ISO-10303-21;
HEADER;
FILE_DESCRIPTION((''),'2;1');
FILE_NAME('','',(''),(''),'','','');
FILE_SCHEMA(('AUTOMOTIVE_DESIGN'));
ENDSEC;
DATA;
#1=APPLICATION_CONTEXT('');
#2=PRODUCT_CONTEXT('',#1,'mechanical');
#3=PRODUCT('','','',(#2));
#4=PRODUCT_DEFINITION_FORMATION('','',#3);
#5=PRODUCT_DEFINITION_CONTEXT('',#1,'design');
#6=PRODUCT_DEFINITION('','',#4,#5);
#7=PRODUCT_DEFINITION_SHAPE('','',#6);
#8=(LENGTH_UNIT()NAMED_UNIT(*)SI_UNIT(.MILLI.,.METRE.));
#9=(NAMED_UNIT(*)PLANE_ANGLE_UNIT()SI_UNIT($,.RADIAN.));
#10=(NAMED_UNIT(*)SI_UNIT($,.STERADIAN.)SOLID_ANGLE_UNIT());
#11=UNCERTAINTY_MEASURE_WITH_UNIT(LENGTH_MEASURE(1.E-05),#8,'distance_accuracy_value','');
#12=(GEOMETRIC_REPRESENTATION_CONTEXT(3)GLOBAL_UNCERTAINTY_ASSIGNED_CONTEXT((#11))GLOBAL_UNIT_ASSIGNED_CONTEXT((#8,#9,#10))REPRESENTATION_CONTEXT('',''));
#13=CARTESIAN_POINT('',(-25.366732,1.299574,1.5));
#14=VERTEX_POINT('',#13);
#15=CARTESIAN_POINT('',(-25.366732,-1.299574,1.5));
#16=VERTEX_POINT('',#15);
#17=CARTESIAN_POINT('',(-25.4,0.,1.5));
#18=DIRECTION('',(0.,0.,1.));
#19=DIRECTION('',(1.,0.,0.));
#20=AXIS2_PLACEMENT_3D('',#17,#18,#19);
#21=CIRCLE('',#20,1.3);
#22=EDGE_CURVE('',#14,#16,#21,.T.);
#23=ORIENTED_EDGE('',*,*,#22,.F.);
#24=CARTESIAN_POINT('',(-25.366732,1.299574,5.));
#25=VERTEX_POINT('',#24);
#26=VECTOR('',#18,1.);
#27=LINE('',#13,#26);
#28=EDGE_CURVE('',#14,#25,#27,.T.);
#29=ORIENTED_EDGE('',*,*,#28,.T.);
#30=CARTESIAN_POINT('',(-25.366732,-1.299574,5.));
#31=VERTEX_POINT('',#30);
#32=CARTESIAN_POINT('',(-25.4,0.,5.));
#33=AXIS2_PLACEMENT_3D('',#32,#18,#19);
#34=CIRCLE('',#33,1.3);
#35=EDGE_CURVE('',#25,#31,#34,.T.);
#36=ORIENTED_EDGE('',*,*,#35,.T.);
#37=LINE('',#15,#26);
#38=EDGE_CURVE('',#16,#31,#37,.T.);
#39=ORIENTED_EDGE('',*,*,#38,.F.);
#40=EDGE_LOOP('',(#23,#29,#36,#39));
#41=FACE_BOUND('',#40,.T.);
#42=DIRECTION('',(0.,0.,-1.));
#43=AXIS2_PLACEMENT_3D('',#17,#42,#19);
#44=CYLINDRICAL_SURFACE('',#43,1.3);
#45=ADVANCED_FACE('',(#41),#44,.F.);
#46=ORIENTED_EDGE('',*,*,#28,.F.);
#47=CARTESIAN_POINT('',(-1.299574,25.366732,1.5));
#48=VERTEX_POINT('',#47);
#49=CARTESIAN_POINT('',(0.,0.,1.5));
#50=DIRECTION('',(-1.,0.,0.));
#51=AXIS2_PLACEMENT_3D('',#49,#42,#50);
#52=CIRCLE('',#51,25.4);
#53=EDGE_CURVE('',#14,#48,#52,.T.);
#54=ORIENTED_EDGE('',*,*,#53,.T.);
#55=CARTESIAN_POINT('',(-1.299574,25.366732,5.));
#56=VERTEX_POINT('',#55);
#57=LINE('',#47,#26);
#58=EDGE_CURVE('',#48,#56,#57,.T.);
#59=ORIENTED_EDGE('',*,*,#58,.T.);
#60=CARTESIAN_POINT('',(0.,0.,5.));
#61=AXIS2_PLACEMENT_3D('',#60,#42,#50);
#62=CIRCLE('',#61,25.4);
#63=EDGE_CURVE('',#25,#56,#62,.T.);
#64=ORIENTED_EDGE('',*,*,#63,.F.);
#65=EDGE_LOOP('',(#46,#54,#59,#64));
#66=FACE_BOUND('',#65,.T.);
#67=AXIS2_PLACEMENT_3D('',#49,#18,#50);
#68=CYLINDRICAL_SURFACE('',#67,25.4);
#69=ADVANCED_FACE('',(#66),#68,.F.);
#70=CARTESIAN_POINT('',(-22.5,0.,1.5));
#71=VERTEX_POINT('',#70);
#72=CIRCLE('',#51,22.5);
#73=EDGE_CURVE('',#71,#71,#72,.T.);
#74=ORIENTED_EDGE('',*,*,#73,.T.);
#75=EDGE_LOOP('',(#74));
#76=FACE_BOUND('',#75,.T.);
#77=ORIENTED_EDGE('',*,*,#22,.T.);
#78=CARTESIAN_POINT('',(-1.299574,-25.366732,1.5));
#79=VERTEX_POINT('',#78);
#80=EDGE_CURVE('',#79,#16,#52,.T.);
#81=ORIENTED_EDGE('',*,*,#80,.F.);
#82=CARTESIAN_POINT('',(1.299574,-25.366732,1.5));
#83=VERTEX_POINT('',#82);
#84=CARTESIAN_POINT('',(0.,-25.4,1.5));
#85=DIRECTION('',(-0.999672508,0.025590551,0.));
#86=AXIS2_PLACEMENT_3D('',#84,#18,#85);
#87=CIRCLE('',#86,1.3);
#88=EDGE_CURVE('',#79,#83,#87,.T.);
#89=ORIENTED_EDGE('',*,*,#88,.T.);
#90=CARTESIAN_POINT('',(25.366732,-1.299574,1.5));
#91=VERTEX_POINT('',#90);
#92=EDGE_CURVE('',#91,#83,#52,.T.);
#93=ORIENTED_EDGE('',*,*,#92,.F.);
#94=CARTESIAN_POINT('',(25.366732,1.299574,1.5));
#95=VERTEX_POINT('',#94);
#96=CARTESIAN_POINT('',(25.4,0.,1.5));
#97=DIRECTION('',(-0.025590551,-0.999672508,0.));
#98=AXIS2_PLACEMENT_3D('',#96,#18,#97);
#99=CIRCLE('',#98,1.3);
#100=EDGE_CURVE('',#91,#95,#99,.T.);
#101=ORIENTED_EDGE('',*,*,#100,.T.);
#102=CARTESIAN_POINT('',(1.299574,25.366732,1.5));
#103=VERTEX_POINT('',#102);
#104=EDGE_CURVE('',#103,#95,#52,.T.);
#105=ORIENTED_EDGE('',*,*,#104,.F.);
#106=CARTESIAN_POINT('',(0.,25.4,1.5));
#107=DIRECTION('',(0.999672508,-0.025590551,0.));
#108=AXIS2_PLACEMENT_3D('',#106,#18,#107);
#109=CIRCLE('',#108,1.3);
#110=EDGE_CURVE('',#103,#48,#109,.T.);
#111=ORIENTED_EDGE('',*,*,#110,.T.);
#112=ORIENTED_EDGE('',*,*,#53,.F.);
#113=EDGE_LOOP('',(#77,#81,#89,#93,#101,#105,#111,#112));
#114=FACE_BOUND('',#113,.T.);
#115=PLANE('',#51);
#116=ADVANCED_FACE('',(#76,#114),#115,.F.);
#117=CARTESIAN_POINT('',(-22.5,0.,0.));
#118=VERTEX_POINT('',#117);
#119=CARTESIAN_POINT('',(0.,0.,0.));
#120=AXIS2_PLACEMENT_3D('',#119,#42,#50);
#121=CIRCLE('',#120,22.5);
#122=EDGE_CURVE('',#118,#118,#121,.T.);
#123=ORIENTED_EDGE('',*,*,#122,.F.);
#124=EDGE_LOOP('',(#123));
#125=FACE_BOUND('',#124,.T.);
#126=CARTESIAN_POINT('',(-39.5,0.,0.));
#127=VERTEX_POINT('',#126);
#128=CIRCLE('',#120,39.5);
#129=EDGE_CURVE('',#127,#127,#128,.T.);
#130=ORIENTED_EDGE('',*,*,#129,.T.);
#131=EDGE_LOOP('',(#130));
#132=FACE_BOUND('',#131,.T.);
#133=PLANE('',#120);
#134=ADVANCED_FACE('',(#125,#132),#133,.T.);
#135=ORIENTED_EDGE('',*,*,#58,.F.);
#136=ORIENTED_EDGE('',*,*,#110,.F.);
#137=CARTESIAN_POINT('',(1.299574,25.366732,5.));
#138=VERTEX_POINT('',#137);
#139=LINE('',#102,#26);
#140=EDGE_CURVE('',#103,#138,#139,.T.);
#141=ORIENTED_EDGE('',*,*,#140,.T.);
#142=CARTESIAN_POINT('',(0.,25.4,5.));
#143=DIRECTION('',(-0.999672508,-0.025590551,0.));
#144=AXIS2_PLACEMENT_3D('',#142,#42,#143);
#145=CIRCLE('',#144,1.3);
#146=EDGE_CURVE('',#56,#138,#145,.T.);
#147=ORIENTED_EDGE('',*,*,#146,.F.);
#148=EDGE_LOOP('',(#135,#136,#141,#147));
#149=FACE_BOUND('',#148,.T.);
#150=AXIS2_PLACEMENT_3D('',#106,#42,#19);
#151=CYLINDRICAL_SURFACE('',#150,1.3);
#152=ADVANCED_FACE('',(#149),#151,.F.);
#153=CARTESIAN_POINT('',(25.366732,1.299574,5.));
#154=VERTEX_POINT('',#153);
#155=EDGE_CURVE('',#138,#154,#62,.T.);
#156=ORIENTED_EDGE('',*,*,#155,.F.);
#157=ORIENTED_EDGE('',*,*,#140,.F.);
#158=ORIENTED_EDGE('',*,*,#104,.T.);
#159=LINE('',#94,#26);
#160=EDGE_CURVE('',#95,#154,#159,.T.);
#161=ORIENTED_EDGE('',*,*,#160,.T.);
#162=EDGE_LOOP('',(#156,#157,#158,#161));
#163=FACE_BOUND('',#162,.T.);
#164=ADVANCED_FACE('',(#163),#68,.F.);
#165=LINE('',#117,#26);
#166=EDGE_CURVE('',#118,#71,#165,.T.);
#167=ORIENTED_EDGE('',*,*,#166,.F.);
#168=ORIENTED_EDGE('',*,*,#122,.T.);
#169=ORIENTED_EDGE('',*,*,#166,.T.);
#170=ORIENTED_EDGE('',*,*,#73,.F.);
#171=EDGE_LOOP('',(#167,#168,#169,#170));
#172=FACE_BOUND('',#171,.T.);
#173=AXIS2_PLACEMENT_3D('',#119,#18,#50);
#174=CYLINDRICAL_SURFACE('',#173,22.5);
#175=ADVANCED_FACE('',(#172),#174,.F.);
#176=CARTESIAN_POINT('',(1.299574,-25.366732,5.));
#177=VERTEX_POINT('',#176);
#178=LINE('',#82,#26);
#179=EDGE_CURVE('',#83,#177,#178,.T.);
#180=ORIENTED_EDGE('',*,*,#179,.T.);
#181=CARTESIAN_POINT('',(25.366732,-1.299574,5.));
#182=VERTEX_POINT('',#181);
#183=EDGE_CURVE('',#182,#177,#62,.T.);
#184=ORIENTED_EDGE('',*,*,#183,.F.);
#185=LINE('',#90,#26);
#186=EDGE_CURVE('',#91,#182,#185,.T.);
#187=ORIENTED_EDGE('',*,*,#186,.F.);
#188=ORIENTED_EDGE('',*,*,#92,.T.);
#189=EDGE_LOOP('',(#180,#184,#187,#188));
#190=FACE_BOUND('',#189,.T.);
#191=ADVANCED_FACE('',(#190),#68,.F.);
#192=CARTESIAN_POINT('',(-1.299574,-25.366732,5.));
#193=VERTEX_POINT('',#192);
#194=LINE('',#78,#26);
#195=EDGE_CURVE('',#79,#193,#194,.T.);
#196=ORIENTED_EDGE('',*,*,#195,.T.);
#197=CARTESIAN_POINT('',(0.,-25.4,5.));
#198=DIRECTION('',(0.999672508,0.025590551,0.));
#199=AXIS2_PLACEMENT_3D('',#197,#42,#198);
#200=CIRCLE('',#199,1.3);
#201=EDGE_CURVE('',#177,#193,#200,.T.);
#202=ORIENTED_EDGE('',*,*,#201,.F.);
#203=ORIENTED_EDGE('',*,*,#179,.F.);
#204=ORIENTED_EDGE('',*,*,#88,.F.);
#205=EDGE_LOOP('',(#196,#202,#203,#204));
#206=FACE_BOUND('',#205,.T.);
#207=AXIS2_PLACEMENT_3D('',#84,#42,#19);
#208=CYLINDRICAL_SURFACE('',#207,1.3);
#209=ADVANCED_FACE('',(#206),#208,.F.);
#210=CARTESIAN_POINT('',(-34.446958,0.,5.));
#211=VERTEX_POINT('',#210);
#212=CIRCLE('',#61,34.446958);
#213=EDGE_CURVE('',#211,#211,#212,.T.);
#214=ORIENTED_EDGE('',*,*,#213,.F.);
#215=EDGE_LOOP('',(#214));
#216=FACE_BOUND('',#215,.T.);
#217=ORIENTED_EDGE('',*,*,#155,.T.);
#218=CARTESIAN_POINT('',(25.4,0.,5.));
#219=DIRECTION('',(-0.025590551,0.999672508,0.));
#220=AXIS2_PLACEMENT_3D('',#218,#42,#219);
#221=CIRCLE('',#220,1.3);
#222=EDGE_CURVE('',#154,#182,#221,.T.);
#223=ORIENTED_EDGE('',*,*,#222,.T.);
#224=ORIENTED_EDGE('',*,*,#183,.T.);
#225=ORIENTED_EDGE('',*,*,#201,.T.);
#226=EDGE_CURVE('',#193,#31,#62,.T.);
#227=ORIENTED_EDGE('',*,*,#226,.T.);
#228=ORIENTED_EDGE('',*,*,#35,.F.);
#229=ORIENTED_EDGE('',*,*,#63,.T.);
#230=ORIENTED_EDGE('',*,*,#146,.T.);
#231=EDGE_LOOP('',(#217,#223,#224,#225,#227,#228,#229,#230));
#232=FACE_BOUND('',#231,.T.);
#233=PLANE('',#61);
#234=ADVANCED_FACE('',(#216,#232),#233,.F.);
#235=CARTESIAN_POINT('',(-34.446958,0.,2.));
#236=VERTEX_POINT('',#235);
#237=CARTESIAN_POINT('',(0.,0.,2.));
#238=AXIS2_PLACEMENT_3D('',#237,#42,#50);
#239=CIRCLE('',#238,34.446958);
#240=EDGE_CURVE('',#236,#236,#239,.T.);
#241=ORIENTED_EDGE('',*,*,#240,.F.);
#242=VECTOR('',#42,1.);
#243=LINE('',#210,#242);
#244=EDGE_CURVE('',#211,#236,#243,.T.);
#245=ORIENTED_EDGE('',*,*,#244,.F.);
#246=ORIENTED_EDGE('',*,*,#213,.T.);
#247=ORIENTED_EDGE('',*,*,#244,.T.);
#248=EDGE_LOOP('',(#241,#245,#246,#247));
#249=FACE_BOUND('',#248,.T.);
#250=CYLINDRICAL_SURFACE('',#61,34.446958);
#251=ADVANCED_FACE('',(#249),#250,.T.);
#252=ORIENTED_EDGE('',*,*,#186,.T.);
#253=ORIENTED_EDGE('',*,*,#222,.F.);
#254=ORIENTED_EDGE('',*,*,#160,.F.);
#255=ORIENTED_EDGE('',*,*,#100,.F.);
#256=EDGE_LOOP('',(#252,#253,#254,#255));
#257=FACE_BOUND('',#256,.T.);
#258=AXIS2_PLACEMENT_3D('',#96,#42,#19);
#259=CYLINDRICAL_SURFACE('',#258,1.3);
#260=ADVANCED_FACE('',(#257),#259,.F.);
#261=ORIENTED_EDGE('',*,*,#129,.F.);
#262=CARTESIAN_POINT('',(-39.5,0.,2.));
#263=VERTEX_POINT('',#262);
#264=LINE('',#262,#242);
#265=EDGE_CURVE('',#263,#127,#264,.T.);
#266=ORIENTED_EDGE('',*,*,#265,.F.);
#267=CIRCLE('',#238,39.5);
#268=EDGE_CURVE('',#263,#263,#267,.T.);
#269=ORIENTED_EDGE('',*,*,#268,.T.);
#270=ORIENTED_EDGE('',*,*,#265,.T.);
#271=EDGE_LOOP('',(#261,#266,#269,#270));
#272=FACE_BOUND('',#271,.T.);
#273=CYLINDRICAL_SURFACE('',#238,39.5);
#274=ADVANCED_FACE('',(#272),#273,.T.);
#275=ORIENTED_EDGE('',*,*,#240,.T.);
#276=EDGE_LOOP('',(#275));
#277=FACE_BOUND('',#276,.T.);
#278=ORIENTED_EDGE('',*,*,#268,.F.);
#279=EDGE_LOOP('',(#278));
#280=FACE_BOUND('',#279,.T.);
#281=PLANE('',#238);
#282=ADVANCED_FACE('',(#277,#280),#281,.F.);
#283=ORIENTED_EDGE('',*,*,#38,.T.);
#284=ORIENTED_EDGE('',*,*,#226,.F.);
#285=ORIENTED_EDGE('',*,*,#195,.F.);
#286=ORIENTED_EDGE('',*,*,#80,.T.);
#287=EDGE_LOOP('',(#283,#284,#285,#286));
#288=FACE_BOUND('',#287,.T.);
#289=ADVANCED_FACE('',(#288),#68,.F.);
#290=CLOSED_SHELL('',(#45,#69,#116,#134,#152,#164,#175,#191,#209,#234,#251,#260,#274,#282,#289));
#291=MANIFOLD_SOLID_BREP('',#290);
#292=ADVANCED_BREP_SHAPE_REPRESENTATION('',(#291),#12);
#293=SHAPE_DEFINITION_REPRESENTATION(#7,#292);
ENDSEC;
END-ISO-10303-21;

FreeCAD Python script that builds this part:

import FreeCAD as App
import Part
import Sketcher
Q = App.Units.Quantity


def add_polygon(sketch, points):
    """Adds a closed chain of lines whose ends are joined by coincident constraints."""
    first, n = sketch.GeometryCount, len(points)
    for a, b in zip(points, points[1:] + points[:1]):
        sketch.addGeometry(Part.LineSegment(App.Vector(*a, 0), App.Vector(*b, 0)), False)
    for i in range(n):
        sketch.addConstraint(Sketcher.Constraint("Coincident", first + i, 2, first + (i + 1) % n, 1))

doc = App.newDocument("Part")
body = doc.addObject("PartDesign::Body", "Body")

# Sketch on XZ plane
sketch1 = body.newObject("Sketcher::SketchObject", "Sketch")
sketch1.AttachmentSupport = (doc.getObject("XZ_Plane"), [""])
sketch1.MapMode = "FlatFace"
add_polygon(sketch1, [(-39.5, 2), (-39.5, 0), (-22.5, 0), (-22.5, 1.5), (-25.4, 1.5), (-25.4, 5), (-34.446958, 5), (-34.446958, 2)])  # lines 0-7
sketch1.addConstraint([
    Sketcher.Constraint("Vertical", 0),
    Sketcher.Constraint("Horizontal", 1),
    Sketcher.Constraint("Vertical", 2),
    Sketcher.Constraint("Horizontal", 3),
    Sketcher.Constraint("Vertical", 4),
    Sketcher.Constraint("Horizontal", 5),
    Sketcher.Constraint("Vertical", 6),
    Sketcher.Constraint("Horizontal", 7),
    Sketcher.Constraint("PointOnObject", 0, 2, -1),
    Sketcher.Constraint("DistanceX", 1, 1, 1, 2, Q("17 mm")),
    Sketcher.Constraint("DistanceY", 0, 2, 0, 1, Q("2 mm")),
    Sketcher.Constraint("DistanceY", 6, 2, 6, 1, Q("3 mm")),
    Sketcher.Constraint("DistanceX", 3, 2, 3, 1, Q("2.9 mm")),
    Sketcher.Constraint("DistanceY", 2, 1, 2, 2, Q("1.5 mm")),
    Sketcher.Constraint("DistanceX", 0, 2, -1, 1, Q("39.5 mm")),
    Sketcher.Constraint("DistanceX", 5, 2, 5, 1, Q("9.046958 mm")),
])
revolution = body.newObject("PartDesign::Revolution", "Revolution")
revolution.Profile = sketch1
revolution.ReferenceAxis = (sketch1, ["V_Axis"])
revolution.Angle = 360

# Sketch on XY plane
sketch2 = body.newObject("Sketcher::SketchObject", "Sketch001")
sketch2.AttachmentSupport = (doc.getObject("XY_Plane"), [""])
sketch2.MapMode = "FlatFace"
sketch2.AttachmentOffset = App.Placement(App.Vector(0, 0, 1.5), App.Rotation())
sketch2.addGeometry([
    Part.Circle(App.Vector(0, 25.4, 0), App.Vector(0, 0, 1), 1.3),
    Part.Circle(App.Vector(-25.4, 0, 0), App.Vector(0, 0, 1), 1.3),
    Part.Circle(App.Vector(0, -25.4, 0), App.Vector(0, 0, 1), 1.3),
    Part.Circle(App.Vector(25.4, 0, 0), App.Vector(0, 0, 1), 1.3),
], False)
sketch2.addConstraint([
    Sketcher.Constraint("Equal", 0, 1),
    Sketcher.Constraint("Equal", 1, 2),
    Sketcher.Constraint("Equal", 2, 3),
    Sketcher.Constraint("Symmetric", 0, 3, 2, 3, -1, 1),
    Sketcher.Constraint("Symmetric", 1, 3, 3, 3, -1, 1),
    Sketcher.Constraint("PointOnObject", 0, 3, -2),
    Sketcher.Constraint("PointOnObject", 1, 3, -1),
    Sketcher.Constraint("Diameter", 0, Q("2.6 mm")),
    Sketcher.Constraint("DistanceY", -1, 1, 0, 3, Q("25.4 mm")),
    Sketcher.Constraint("DistanceX", 1, 3, -1, 1, Q("25.4 mm")),
])
pocket1 = body.newObject("PartDesign::Pocket", "Pocket")
pocket1.Profile = sketch2
pocket1.Length = 3.5
pocket1.Reversed = True

doc.recompute()
